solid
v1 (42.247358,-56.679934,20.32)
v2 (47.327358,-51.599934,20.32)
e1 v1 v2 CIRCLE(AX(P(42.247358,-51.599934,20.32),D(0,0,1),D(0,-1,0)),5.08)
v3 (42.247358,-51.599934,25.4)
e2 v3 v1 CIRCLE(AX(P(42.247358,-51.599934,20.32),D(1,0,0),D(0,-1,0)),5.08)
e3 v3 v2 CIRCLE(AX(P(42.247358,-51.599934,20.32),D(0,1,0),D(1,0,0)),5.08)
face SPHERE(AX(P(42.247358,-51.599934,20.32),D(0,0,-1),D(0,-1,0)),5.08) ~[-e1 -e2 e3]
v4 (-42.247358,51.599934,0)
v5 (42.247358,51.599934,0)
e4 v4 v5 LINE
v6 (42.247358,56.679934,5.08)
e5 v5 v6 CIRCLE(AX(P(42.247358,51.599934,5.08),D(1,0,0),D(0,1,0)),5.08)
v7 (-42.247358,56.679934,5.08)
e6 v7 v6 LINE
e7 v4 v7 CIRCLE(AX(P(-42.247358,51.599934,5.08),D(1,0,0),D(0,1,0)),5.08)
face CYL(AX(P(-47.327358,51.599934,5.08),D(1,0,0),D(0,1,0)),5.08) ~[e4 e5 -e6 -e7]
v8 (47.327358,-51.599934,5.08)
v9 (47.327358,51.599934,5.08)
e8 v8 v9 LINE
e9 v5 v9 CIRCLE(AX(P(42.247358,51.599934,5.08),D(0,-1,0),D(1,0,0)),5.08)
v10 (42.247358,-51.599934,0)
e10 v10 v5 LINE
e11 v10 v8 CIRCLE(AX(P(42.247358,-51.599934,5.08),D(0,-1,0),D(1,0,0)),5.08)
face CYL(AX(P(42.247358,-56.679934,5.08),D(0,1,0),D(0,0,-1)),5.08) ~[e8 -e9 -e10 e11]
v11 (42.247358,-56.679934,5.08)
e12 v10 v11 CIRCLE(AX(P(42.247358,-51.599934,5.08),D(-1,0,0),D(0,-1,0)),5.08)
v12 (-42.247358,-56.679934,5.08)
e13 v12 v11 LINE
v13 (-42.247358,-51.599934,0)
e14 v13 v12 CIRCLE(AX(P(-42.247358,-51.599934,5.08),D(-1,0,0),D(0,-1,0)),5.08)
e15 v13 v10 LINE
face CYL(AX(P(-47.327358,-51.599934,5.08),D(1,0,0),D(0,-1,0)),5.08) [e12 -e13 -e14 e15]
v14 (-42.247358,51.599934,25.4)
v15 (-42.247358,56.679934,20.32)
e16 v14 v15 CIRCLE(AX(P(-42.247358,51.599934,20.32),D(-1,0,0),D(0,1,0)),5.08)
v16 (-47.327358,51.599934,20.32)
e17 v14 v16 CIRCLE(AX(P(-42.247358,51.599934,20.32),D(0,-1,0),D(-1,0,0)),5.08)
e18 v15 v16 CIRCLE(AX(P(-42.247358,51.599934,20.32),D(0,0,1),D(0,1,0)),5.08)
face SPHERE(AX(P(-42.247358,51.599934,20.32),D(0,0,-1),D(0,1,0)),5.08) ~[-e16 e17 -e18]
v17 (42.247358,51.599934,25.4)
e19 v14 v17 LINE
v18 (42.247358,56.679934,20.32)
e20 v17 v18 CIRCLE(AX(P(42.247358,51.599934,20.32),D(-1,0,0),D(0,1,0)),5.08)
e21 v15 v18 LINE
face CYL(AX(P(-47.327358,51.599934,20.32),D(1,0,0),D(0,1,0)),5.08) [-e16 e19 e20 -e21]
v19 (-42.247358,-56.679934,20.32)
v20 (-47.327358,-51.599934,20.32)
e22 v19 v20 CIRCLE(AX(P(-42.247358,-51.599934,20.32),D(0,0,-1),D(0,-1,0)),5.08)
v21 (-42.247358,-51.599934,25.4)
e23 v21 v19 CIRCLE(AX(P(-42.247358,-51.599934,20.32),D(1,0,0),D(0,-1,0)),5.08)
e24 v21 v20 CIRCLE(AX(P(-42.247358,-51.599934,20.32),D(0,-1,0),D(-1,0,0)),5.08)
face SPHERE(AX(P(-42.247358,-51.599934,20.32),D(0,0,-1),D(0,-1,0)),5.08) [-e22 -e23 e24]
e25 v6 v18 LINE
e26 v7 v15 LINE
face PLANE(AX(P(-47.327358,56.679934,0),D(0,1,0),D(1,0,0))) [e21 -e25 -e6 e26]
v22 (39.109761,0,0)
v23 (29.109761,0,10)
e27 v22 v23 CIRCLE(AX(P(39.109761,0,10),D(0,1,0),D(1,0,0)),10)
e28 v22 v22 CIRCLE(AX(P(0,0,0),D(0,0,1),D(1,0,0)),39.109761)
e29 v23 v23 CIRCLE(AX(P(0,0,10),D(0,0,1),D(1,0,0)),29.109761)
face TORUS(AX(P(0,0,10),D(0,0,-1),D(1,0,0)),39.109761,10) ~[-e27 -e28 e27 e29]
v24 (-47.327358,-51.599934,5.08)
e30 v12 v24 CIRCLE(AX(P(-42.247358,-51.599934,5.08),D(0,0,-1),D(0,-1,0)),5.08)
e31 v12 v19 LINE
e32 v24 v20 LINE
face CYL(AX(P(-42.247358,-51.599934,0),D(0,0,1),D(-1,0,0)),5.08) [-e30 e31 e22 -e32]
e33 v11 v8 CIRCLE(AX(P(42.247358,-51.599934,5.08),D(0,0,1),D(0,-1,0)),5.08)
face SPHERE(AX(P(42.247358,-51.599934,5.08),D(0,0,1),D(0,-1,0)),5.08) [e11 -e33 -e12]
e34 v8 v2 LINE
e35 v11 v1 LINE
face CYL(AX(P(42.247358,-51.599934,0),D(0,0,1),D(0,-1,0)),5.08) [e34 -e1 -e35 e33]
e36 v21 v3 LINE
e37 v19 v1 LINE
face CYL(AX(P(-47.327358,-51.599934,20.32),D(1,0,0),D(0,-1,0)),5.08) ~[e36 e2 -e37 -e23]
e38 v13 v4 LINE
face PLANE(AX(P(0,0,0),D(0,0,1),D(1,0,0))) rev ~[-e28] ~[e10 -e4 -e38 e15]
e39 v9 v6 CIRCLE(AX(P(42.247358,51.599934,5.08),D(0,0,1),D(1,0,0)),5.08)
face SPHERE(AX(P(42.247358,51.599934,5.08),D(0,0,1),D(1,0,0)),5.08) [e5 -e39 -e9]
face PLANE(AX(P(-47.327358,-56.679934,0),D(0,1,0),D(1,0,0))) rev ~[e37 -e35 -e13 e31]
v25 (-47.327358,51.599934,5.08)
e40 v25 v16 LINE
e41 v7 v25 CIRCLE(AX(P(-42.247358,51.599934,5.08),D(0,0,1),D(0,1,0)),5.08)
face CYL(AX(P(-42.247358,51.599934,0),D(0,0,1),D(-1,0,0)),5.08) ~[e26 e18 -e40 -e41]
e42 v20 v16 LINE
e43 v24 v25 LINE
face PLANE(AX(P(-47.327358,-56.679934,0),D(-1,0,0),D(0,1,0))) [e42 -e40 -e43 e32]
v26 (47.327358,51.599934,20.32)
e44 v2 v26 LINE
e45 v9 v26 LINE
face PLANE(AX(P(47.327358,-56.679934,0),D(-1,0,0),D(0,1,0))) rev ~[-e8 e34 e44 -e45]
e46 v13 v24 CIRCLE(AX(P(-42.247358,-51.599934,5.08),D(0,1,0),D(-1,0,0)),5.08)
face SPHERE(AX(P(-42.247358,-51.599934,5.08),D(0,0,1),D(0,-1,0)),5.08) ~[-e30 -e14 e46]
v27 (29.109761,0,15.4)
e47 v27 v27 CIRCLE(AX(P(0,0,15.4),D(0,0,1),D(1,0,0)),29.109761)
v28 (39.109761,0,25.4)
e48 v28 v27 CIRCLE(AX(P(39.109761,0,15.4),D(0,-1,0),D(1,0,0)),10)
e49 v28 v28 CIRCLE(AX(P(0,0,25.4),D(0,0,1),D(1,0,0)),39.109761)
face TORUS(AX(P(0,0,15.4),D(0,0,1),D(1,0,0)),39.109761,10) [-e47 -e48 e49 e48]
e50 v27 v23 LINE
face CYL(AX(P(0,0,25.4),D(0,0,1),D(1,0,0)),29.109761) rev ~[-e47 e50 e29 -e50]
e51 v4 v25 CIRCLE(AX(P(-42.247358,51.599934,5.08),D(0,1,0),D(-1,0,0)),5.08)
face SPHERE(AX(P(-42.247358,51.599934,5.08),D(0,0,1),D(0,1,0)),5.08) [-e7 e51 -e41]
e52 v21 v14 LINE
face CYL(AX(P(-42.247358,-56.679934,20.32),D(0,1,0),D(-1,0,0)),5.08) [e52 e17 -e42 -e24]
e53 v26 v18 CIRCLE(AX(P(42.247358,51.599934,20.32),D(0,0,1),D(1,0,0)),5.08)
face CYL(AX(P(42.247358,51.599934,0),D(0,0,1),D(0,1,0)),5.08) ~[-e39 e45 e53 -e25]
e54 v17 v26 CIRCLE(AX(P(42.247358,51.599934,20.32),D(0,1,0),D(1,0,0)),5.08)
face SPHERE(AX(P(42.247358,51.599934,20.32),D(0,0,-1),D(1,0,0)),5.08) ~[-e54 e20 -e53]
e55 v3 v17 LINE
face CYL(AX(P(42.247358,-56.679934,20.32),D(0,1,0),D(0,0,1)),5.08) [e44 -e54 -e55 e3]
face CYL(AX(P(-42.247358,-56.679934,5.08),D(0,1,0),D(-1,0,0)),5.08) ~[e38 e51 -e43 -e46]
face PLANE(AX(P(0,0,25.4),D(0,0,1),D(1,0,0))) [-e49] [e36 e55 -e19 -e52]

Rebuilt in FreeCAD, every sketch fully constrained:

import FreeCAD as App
import Part
import Sketcher
Q = App.Units.Quantity


def edges_at(feature, points):
    """Names of the edges that pass closest to the given points."""
    edges = feature.Shape.Edges
    near = lambda p: min(range(len(edges)), key=lambda i: edges[i].distToShape(Part.Vertex(*p))[0])
    return sorted({f"Edge{near(p) + 1}" for p in points})


def add_polygon(sketch, points):
    """Adds a closed chain of lines whose ends are joined by coincident constraints."""
    first, n = sketch.GeometryCount, len(points)
    for a, b in zip(points, points[1:] + points[:1]):
        sketch.addGeometry(Part.LineSegment(App.Vector(*a, 0), App.Vector(*b, 0)), False)
    for i in range(n):
        sketch.addConstraint(Sketcher.Constraint("Coincident", first + i, 2, first + (i + 1) % n, 1))

doc = App.newDocument("Part")
body = doc.addObject("PartDesign::Body", "Body")

sketch1 = body.newObject("Sketcher::SketchObject", "Sketch")
sketch1.AttachmentSupport = (doc.getObject("XY_Plane"), [""])
sketch1.MapMode = "FlatFace"
add_polygon(sketch1, [(-47.327358, 56.679934), (-47.327358, -56.679934), (47.327358, -56.679934), (47.327358, 56.679934)])
sketch1.addConstraint(Sketcher.Constraint("Vertical", 0))
sketch1.addConstraint(Sketcher.Constraint("Horizontal", 1))
sketch1.addConstraint(Sketcher.Constraint("Vertical", 2))
sketch1.addConstraint(Sketcher.Constraint("Horizontal", 3))
sketch1.addConstraint(Sketcher.Constraint("Symmetric", 0, 2, 2, 2, -1, 1))
sketch1.addConstraint(Sketcher.Constraint("DistanceY", 0, 2, 0, 1, Q("113.359868 mm")))
sketch1.addConstraint(Sketcher.Constraint("DistanceX", 1, 1, 1, 2, Q("94.654716 mm")))
pad1 = body.newObject("PartDesign::Pad", "Pad")
pad1.Profile = sketch1
pad1.Length = Q("1 in")

sketch2 = body.newObject("Sketcher::SketchObject", "Sketch001")
sketch2.AttachmentSupport = (doc.getObject("XY_Plane"), [""])
sketch2.MapMode = "FlatFace"
sketch2.AttachmentOffset = App.Placement(App.Vector(0, 0, 1 * 25.4), App.Rotation())
sketch2.addGeometry(Part.Circle(App.Vector(0, 0, 0), App.Vector(0, 0, 1), 29.109761), False)
sketch2.addConstraint(Sketcher.Constraint("Coincident", 0, 3, -1, 1))
sketch2.addConstraint(Sketcher.Constraint("Diameter", 0, Q("58.219522 mm")))
pocket1 = body.newObject("PartDesign::Pocket", "Pocket")
pocket1.Profile = sketch2
pocket1.Type = "ThroughAll"
doc.recompute()

fillet = body.newObject("PartDesign::Fillet", "Fillet")
fillet.Base = (pocket1, edges_at(pocket1, [
    (-47.327, -56.68, 12.7),
    (47.327, -56.68, 12.7),
    (0, -56.68, 0),
    (0, -56.68, 25.4),
    (47.327, 56.68, 12.7),
    (47.327, 0, 0),
    (47.327, 0, 25.4),
    (-47.327, 56.68, 12.7),
    (0, 56.68, 0),
    (0, 56.68, 25.4),
    (-47.327, 0, 0),
    (-47.327, 0, 25.4),
]))
fillet.Radius = Q("0.2 in")
doc.recompute()

fillet2 = body.newObject("PartDesign::Fillet", "Fillet001")
fillet2.Base = (fillet, edges_at(fillet, [(-29.11, 0, 25.4), (29.11, 0, 12.7), (-29.11, 0, 0)]))
fillet2.Radius = 10

doc.recompute()
